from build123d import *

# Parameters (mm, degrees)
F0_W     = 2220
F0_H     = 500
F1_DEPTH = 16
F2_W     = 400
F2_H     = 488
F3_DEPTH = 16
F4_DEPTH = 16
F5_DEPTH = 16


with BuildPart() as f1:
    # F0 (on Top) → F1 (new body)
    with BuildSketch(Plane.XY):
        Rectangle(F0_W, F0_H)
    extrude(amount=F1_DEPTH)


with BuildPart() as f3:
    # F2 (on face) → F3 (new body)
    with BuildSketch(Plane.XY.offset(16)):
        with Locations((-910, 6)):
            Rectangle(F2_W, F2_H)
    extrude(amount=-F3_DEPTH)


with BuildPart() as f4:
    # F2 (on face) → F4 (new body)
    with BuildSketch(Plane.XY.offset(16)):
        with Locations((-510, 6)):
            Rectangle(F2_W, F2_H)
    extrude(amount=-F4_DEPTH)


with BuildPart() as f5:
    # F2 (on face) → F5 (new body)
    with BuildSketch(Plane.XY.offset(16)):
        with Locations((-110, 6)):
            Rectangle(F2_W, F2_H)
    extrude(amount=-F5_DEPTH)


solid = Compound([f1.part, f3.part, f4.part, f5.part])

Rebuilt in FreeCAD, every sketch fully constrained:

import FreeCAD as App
import Part
import Sketcher
from FreeCAD import Vector


def add_polygon(sketch, points):
    """Adds a closed chain of lines whose ends are joined by coincident constraints."""
    first, n = sketch.GeometryCount, len(points)
    for a, b in zip(points, points[1:] + points[:1]):
        sketch.addGeometry(Part.LineSegment(App.Vector(*a, 0), App.Vector(*b, 0)), False)
    for i in range(n):
        sketch.addConstraint(Sketcher.Constraint("Coincident", first + i, 2, first + (i + 1) % n, 1))

doc = App.newDocument("Part")
body = doc.addObject("PartDesign::Body", "Body")

# Sketch on XY plane
sketch1 = doc.addObject("Sketcher::SketchObject", "Sketch")
body.addObject(sketch1)
sketch1.AttachmentSupport = (doc.XY_Plane, [""])
sketch1.MapMode = "FlatFace"
add_polygon(sketch1, [(-1110, 250), (-1110, -250), (1110, -250), (1110, 250)])  # lines 0-3
sketch1.addConstraint(Sketcher.Constraint("Vertical", 0))
sketch1.addConstraint(Sketcher.Constraint("Horizontal", 1))
sketch1.addConstraint(Sketcher.Constraint("Vertical", 2))
sketch1.addConstraint(Sketcher.Constraint("Horizontal", 3))
sketch1.addConstraint(Sketcher.Constraint("Symmetric", 0, 2, 2, 2, -1, 1))
sketch1.addConstraint(Sketcher.Constraint("DistanceX", 1, 1, 1, 2, 2220.0))
sketch1.addConstraint(Sketcher.Constraint("DistanceY", 0, 2, 0, 1, 500.0))
pad1 = doc.addObject("PartDesign::Pad", "Pad")
body.addObject(pad1)
pad1.Profile = sketch1
pad1.Length = 16
body2 = doc.addObject("PartDesign::Body", "Body001")

# Sketch on XY plane
sketch2 = doc.addObject("Sketcher::SketchObject", "Sketch001")
body2.addObject(sketch2)
sketch2.AttachmentSupport = (doc.getObject("XY_Plane001"), [""])
sketch2.MapMode = "FlatFace"
sketch2.AttachmentOffset = App.Placement(Vector(0, 0, 16), App.Rotation())
add_polygon(sketch2, [(-1110, 250), (-1110, -238), (-710, -238), (-710, 250)])  # lines 0-3
sketch2.addConstraint(Sketcher.Constraint("Vertical", 0))
sketch2.addConstraint(Sketcher.Constraint("Horizontal", 1))
sketch2.addConstraint(Sketcher.Constraint("Vertical", 2))
sketch2.addConstraint(Sketcher.Constraint("Horizontal", 3))
sketch2.addConstraint(Sketcher.Constraint("DistanceX", 1, 1, 1, 2, 400.0))
sketch2.addConstraint(Sketcher.Constraint("DistanceY", 0, 2, 0, 1, 488.0))
sketch2.addConstraint(Sketcher.Constraint("DistanceX", 0, 2, -1, 1, 1110.0))
sketch2.addConstraint(Sketcher.Constraint("DistanceY", 0, 2, -1, 1, 238.0))
pad2 = doc.addObject("PartDesign::Pad", "Pad001")
body2.addObject(pad2)
pad2.Profile = sketch2
pad2.Length = 16
pad2.Reversed = True
body3 = doc.addObject("PartDesign::Body", "Body002")

# Sketch on XY plane
sketch3 = doc.addObject("Sketcher::SketchObject", "Sketch002")
body3.addObject(sketch3)
sketch3.AttachmentSupport = (doc.getObject("XY_Plane002"), [""])
sketch3.MapMode = "FlatFace"
sketch3.AttachmentOffset = App.Placement(Vector(0, 0, 16), App.Rotation())
add_polygon(sketch3, [(-710, 250), (-710, -238), (-310, -238), (-310, 250)])  # lines 0-3
sketch3.addConstraint(Sketcher.Constraint("Vertical", 0))
sketch3.addConstraint(Sketcher.Constraint("Horizontal", 1))
sketch3.addConstraint(Sketcher.Constraint("Vertical", 2))
sketch3.addConstraint(Sketcher.Constraint("Horizontal", 3))
sketch3.addConstraint(Sketcher.Constraint("DistanceX", 1, 1, 1, 2, 400.0))
sketch3.addConstraint(Sketcher.Constraint("DistanceY", 0, 2, 0, 1, 488.0))
sketch3.addConstraint(Sketcher.Constraint("DistanceX", 0, 2, -1, 1, 710.0))
sketch3.addConstraint(Sketcher.Constraint("DistanceY", 0, 2, -1, 1, 238.0))
pad3 = doc.addObject("PartDesign::Pad", "Pad002")
body3.addObject(pad3)
pad3.Profile = sketch3
pad3.Length = 16
pad3.Reversed = True
body4 = doc.addObject("PartDesign::Body", "Body003")

# Sketch on XY plane
sketch4 = doc.addObject("Sketcher::SketchObject", "Sketch003")
body4.addObject(sketch4)
sketch4.AttachmentSupport = (doc.getObject("XY_Plane003"), [""])
sketch4.MapMode = "FlatFace"
sketch4.AttachmentOffset = App.Placement(Vector(0, 0, 16), App.Rotation())
add_polygon(sketch4, [(-310, 250), (-310, -238), (90, -238), (90, 250)])  # lines 0-3
sketch4.addConstraint(Sketcher.Constraint("Vertical", 0))
sketch4.addConstraint(Sketcher.Constraint("Horizontal", 1))
sketch4.addConstraint(Sketcher.Constraint("Vertical", 2))
sketch4.addConstraint(Sketcher.Constraint("Horizontal", 3))
sketch4.addConstraint(Sketcher.Constraint("DistanceX", 1, 1, 1, 2, 400.0))
sketch4.addConstraint(Sketcher.Constraint("DistanceY", 0, 2, 0, 1, 488.0))
sketch4.addConstraint(Sketcher.Constraint("DistanceX", 0, 2, -1, 1, 310.0))
sketch4.addConstraint(Sketcher.Constraint("DistanceY", 0, 2, -1, 1, 238.0))
pad4 = doc.addObject("PartDesign::Pad", "Pad003")
body4.addObject(pad4)
pad4.Profile = sketch4
pad4.Length = 16
pad4.Reversed = True

doc.recompute()
